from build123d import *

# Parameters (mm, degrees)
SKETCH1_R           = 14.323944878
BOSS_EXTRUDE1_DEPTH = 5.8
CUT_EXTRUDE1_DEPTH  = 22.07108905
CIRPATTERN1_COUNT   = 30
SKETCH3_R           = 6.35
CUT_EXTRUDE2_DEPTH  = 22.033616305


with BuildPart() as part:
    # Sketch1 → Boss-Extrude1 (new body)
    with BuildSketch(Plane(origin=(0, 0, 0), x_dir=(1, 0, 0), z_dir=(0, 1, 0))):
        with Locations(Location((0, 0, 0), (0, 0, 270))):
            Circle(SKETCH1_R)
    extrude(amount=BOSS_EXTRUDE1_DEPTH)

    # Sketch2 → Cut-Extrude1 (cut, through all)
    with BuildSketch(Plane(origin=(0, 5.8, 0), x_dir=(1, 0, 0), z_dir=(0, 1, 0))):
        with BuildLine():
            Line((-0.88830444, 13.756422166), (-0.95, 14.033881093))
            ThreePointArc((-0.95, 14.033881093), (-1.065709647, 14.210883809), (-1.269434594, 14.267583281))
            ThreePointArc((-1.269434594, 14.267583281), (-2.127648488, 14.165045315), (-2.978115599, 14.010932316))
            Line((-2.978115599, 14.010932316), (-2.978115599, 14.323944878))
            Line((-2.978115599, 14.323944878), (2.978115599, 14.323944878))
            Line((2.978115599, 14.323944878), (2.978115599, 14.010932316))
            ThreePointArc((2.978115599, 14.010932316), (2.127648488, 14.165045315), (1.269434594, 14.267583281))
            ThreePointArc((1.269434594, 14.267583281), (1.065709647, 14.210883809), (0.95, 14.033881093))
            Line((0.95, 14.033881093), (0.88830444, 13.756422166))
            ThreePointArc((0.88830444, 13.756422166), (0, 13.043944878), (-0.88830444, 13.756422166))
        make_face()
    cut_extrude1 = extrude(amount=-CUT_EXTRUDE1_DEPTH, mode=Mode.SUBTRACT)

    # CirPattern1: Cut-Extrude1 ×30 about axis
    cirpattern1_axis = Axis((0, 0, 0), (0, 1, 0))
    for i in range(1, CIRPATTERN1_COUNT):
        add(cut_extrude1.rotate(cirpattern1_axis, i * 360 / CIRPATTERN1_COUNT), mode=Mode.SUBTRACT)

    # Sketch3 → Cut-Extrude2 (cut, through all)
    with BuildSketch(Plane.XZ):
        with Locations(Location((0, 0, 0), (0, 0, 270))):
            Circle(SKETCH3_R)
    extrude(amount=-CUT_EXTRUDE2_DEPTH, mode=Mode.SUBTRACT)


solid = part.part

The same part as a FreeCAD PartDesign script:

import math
import FreeCAD as App
import Part
import Sketcher

V = App.Vector
Q = App.Units.Quantity

doc = App.newDocument("Part")
body = doc.addObject("PartDesign::Body", "Body")

# Sketch on XZ plane
sketch1 = body.newObject("Sketcher::SketchObject", "Sketch")
sketch1.AttachmentSupport = (doc.getObject("XZ_Plane"), [""])
sketch1.MapMode = "FlatFace"
sketch1.addGeometry(Part.Circle(V(0, 0, 0), V(0, 0, 1), 14.323945), False)
sketch1.addConstraint([
    Sketcher.Constraint("Coincident", 0, 3, -1, 1),
    Sketcher.Constraint("Diameter", 0, Q("28.64789 mm")),
])
pad1 = body.newObject("PartDesign::Pad", "Pad")
pad1.Profile = sketch1
pad1.Length = 5.8
pad1.Reversed = True

# Sketch on XZ plane
sketch2 = body.newObject("Sketcher::SketchObject", "Sketch001")
sketch2.AttachmentSupport = (doc.getObject("XZ_Plane"), [""])
sketch2.MapMode = "FlatFace"
sketch2.AttachmentOffset = App.Placement(V(0, 0, -5.8), App.Rotation())
sketch2.addGeometry([
    Part.LineSegment(V(-0.95, -14.033881, 0), V(-0.888304, -13.756422, 0)),  # 0
    Part.ArcOfCircle(Part.Circle(V(0, -13.953945, 0), V(0, 0, 1), 0.91), math.radians(12.536289), math.radians(167.463711)),  # 1
    Part.LineSegment(V(0.888304, -13.756422, 0), V(0.95, -14.033881, 0)),  # 2
    Part.ArcOfCircle(Part.Circle(V(1.242848, -13.968764, 0), V(0, 0, 1), 0.3), math.radians(-167.463711), math.radians(-84.915591)),  # 3
    Part.ArcOfCircle(Part.Circle(V(0, 0, 0), V(0, 0, 1), 14.323945), math.radians(-84.915591), math.radians(-78)),  # 4
    Part.LineSegment(V(2.978116, -14.010932, 0), V(2.978116, -14.323945, 0)),  # 5
    Part.LineSegment(V(2.978116, -14.323945, 0), V(-2.978116, -14.323945, 0)),  # 6
    Part.LineSegment(V(-2.978116, -14.323945, 0), V(-2.978116, -14.010932, 0)),  # 7
    Part.ArcOfCircle(Part.Circle(V(0, 0, 0), V(0, 0, 1), 14.323945), math.radians(-102), math.radians(-95.084409)),  # 8
    Part.ArcOfCircle(Part.Circle(V(-1.242848, -13.968764, 0), V(0, 0, 1), 0.3), math.radians(-95.084409), math.radians(-12.536289)),  # 9
], False)
sketch2.addConstraint([
    Sketcher.Constraint("Tangent", 0, 2, 1, 2),
    Sketcher.Constraint("Tangent", 1, 1, 2, 1),
    Sketcher.Constraint("Tangent", 2, 2, 3, 1),
    Sketcher.Constraint("Tangent", 3, 2, 4, 1),
    Sketcher.Constraint("Coincident", 4, 2, 5, 1),
    Sketcher.Constraint("Coincident", 5, 2, 6, 1),
    Sketcher.Constraint("Coincident", 6, 2, 7, 1),
    Sketcher.Constraint("Coincident", 7, 2, 8, 1),
    Sketcher.Constraint("Tangent", 8, 2, 9, 1),
    Sketcher.Constraint("Tangent", 9, 2, 0, 1),
    Sketcher.Constraint("Vertical", 5),
    Sketcher.Constraint("Horizontal", 6),
    Sketcher.Constraint("Vertical", 7),
    Sketcher.Constraint("Coincident", 4, 3, -1, 1),
    Sketcher.Constraint("Coincident", 8, 3, -1, 1),
    Sketcher.Constraint("Equal", 4, 8),
    Sketcher.Constraint("Equal", 3, 9),
    Sketcher.Constraint("Symmetric", 0, 2, 1, 1, -2),
    Sketcher.Constraint("Horizontal", 4, 2, 7, 2),
    Sketcher.Constraint("Radius", 3, Q("0.3 mm")),
    Sketcher.Constraint("Radius", 1, Q("0.91 mm")),
    Sketcher.Constraint("DistanceX", -1, 1, 2, 2, Q("0.95 mm")),
    Sketcher.Constraint("DistanceY", 6, 2, 1, 3, Q("0.37 mm")),
    Sketcher.Constraint("Radius", 4, Q("14.323945 mm")),
    Sketcher.Constraint("DistanceX", 6, 2, 6, 1, Q("5.956231 mm")),
    Sketcher.Constraint("DistanceY", 5, 2, 5, 1, Q("0.313013 mm")),
])
pocket1 = body.newObject("PartDesign::Pocket", "Pocket")
pocket1.Profile = sketch2
pocket1.Type = "ThroughAll"
pocket1.Reversed = True
doc.recompute()

polarpattern = body.newObject("PartDesign::PolarPattern", "PolarPattern")
polarpattern.Originals = [pocket1]
polarpattern.Axis = (doc.getObject("Y_Axis"), [""])
polarpattern.Angle = 360
polarpattern.Occurrences = 30
body.Tip = polarpattern

# Sketch on XZ plane
sketch3 = body.newObject("Sketcher::SketchObject", "Sketch002")
sketch3.AttachmentSupport = (doc.getObject("XZ_Plane"), [""])
sketch3.MapMode = "FlatFace"
sketch3.addGeometry(Part.Circle(V(0, 0, 0), V(0, 0, 1), 6.35), False)
sketch3.addConstraint([
    Sketcher.Constraint("Coincident", 0, 3, -1, 1),
    Sketcher.Constraint("Diameter", 0, Q("12.7 mm")),
])
pocket2 = body.newObject("PartDesign::Pocket", "Pocket001")
pocket2.Profile = sketch3
pocket2.Type = "ThroughAll"

doc.recompute()
